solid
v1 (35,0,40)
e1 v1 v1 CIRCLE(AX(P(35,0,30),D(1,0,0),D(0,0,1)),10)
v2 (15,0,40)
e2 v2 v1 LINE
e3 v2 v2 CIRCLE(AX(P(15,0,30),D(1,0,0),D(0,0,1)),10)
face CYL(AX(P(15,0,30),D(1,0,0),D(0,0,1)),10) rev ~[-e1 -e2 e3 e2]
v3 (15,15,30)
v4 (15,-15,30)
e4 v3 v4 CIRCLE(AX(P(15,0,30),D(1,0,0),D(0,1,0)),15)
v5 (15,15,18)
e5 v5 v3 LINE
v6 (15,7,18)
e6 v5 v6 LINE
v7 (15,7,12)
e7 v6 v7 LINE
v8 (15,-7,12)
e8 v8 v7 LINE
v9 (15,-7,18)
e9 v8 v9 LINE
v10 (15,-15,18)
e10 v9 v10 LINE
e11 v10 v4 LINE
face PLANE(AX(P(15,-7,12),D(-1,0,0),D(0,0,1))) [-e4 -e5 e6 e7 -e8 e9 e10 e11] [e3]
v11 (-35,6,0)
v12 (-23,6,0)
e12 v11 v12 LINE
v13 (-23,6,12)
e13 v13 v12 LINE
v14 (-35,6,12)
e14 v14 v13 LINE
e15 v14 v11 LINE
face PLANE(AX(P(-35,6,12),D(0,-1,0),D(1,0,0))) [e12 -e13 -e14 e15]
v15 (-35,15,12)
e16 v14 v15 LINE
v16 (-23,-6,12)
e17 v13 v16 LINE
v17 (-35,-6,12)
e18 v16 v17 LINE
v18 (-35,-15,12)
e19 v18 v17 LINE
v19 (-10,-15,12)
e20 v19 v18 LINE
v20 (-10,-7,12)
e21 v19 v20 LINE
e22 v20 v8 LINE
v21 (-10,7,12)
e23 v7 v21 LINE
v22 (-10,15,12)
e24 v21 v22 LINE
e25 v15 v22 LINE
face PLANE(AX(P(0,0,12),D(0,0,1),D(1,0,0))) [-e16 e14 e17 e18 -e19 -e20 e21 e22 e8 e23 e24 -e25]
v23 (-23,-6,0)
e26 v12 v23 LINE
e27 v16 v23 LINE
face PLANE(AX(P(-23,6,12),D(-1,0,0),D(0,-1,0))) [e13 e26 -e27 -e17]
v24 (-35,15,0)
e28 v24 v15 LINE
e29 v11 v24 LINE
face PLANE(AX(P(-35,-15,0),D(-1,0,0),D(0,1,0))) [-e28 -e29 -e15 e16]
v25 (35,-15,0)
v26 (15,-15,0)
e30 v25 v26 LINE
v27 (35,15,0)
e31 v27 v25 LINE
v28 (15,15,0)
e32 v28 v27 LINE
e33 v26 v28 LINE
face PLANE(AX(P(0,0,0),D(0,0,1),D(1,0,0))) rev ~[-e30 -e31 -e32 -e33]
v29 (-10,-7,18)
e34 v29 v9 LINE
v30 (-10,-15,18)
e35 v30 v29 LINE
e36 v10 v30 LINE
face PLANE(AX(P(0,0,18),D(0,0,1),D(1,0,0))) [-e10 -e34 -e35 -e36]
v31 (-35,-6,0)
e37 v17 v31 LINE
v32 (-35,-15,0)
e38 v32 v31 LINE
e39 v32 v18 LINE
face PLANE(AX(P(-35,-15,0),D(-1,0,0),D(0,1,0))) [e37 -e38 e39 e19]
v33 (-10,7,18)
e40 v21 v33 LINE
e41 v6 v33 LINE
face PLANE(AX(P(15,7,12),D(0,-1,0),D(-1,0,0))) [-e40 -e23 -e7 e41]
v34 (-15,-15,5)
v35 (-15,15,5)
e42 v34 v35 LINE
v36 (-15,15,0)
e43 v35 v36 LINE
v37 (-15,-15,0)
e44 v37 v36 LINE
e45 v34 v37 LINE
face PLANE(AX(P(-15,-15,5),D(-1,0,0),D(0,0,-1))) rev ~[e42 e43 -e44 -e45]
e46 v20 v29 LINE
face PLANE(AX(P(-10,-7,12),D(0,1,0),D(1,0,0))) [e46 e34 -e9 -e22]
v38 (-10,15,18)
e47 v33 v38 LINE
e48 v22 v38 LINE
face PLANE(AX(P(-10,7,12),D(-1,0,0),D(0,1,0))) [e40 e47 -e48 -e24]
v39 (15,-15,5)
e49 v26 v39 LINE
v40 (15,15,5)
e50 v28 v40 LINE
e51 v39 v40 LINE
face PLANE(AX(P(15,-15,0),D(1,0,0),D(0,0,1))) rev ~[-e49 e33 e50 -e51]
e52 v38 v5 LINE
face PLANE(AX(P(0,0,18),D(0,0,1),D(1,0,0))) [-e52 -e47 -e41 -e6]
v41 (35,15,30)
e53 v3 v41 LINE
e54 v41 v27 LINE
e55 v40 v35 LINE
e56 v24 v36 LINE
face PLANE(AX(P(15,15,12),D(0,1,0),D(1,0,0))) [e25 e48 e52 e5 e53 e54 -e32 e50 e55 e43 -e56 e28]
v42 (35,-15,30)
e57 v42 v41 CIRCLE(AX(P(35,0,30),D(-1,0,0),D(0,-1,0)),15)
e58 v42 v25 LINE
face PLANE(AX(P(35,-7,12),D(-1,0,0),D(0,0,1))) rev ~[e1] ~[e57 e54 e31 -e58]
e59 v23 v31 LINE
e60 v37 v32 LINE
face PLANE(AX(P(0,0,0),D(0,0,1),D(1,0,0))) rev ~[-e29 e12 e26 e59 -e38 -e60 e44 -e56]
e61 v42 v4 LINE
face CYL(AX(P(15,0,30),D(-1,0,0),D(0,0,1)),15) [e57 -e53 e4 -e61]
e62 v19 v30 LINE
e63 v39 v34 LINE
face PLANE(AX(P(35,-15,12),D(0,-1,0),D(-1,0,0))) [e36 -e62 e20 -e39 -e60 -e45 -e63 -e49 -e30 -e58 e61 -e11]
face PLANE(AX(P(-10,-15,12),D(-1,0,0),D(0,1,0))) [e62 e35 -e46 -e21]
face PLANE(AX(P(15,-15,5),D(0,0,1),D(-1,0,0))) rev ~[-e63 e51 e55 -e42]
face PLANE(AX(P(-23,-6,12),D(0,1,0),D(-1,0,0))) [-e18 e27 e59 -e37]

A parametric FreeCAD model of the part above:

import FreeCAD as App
import Part
import Sketcher
from FreeCAD import Vector

doc = App.newDocument("Part")
body = doc.addObject("PartDesign::Body", "Body")

# Sketch on XY plane
sketch1 = body.newObject("Sketcher::SketchObject", "Sketch")
sketch1.AttachmentSupport = (doc.getObject("XY_Plane"), [""])
sketch1.MapMode = "FlatFace"
sketch1.addGeometry([
    Part.LineSegment(Vector(35, 15, 0), Vector(-35, 15, 0)),
    Part.LineSegment(Vector(-35, 15, 0), Vector(-35, -15, 0)),
    Part.LineSegment(Vector(-35, -15, 0), Vector(35, -15, 0)),
    Part.LineSegment(Vector(35, -15, 0), Vector(35, 15, 0)),
], False)
sketch1.addConstraint([
    Sketcher.Constraint("Coincident", 0, 2, 1, 1),
    Sketcher.Constraint("Coincident", 1, 2, 2, 1),
    Sketcher.Constraint("Coincident", 2, 2, 3, 1),
    Sketcher.Constraint("Coincident", 3, 2, 0, 1),
    Sketcher.Constraint("Horizontal", 0),
    Sketcher.Constraint("Vertical", 1),
    Sketcher.Constraint("Horizontal", 2),
    Sketcher.Constraint("Vertical", 3),
    Sketcher.Constraint("Symmetric", 0, 2, 2, 2, -1, 1),
    Sketcher.Constraint("DistanceX", 0, 2, 0, 1, 70.0),
    Sketcher.Constraint("DistanceY", 1, 2, 1, 1, 30.0),
])
pad1 = body.newObject("PartDesign::Pad", "Pad")
pad1.Profile = sketch1
pad1.Length = 12

# Sketch on XY plane
sketch2 = body.newObject("Sketcher::SketchObject", "Sketch001")
sketch2.AttachmentSupport = (doc.getObject("XY_Plane"), [""])
sketch2.MapMode = "FlatFace"
sketch2.AttachmentOffset = App.Placement(Vector(0, 0, 12), App.Rotation())
sketch2.addGeometry([
    Part.LineSegment(Vector(-23, 6, 0), Vector(-35, 6, 0)),
    Part.LineSegment(Vector(-35, 6, 0), Vector(-35, -6, 0)),
    Part.LineSegment(Vector(-35, -6, 0), Vector(-23, -6, 0)),
    Part.LineSegment(Vector(-23, -6, 0), Vector(-23, 6, 0)),
], False)
sketch2.addConstraint([
    Sketcher.Constraint("Coincident", 0, 2, 1, 1),
    Sketcher.Constraint("Coincident", 1, 2, 2, 1),
    Sketcher.Constraint("Coincident", 2, 2, 3, 1),
    Sketcher.Constraint("Coincident", 3, 2, 0, 1),
    Sketcher.Constraint("Horizontal", 0),
    Sketcher.Constraint("Vertical", 1),
    Sketcher.Constraint("Horizontal", 2),
    Sketcher.Constraint("Vertical", 3),
    Sketcher.Constraint("Equal", 2, 1),
    Sketcher.Constraint("DistanceX", 0, 2, 0, 1, 12.0),
    Sketcher.Constraint("DistanceX", 0, 2, -1, 1, 35.0),
    Sketcher.Constraint("DistanceY", -1, 1, 0, 2, 6.0),
])
pocket1 = body.newObject("PartDesign::Pocket", "Pocket")
pocket1.Profile = sketch2
pocket1.Length = 12

# Sketch on XZ plane
sketch3 = body.newObject("Sketcher::SketchObject", "Sketch002")
sketch3.AttachmentSupport = (doc.getObject("XZ_Plane"), [""])
sketch3.MapMode = "FlatFace"
sketch3.AttachmentOffset = App.Placement(Vector(0, 0, 15), App.Rotation())
sketch3.addGeometry([
    Part.LineSegment(Vector(-15, 0, 0), Vector(15, 0, 0)),
    Part.LineSegment(Vector(15, 0, 0), Vector(15, 5, 0)),
    Part.LineSegment(Vector(15, 5, 0), Vector(-15, 5, 0)),
    Part.LineSegment(Vector(-15, 5, 0), Vector(-15, 0, 0)),
], False)
sketch3.addConstraint([
    Sketcher.Constraint("Coincident", 0, 2, 1, 1),
    Sketcher.Constraint("Coincident", 1, 2, 2, 1),
    Sketcher.Constraint("Coincident", 2, 2, 3, 1),
    Sketcher.Constraint("Coincident", 3, 2, 0, 1),
    Sketcher.Constraint("Horizontal", 0),
    Sketcher.Constraint("Vertical", 1),
    Sketcher.Constraint("Horizontal", 2),
    Sketcher.Constraint("Vertical", 3),
    Sketcher.Constraint("Symmetric", 0, 2, 3, 2, -1, 1),
    Sketcher.Constraint("DistanceX", 0, 1, 0, 2, 30.0),
    Sketcher.Constraint("DistanceY", 1, 1, 1, 2, 5.0),
])
pocket2 = body.newObject("PartDesign::Pocket", "Pocket001")
pocket2.Profile = sketch3
pocket2.Length = 30

# Sketch on XY plane
sketch4 = body.newObject("Sketcher::SketchObject", "Sketch003")
sketch4.AttachmentSupport = (doc.getObject("XY_Plane"), [""])
sketch4.MapMode = "FlatFace"
sketch4.AttachmentOffset = App.Placement(Vector(0, 0, 12), App.Rotation())
sketch4.addGeometry([
    Part.LineSegment(Vector(15, 15, 0), Vector(-10, 15, 0)),  # 0
    Part.LineSegment(Vector(-10, 15, 0), Vector(-10, 7, 0)),  # 1
    Part.LineSegment(Vector(-10, 7, 0), Vector(15, 7, 0)),  # 2
    Part.LineSegment(Vector(15, 7, 0), Vector(15, 15, 0)),  # 3
    Part.LineSegment(Vector(-10, -15, 0), Vector(15, -15, 0)),  # 4
    Part.LineSegment(Vector(15, -15, 0), Vector(15, -7, 0)),  # 5
    Part.LineSegment(Vector(15, -7, 0), Vector(-10, -7, 0)),  # 6
    Part.LineSegment(Vector(-10, -7, 0), Vector(-10, -15, 0)),  # 7
], False)
sketch4.addConstraint([
    Sketcher.Constraint("Coincident", 0, 2, 1, 1),
    Sketcher.Constraint("Coincident", 1, 2, 2, 1),
    Sketcher.Constraint("Coincident", 2, 2, 3, 1),
    Sketcher.Constraint("Coincident", 3, 2, 0, 1),
    Sketcher.Constraint("Coincident", 4, 2, 5, 1),
    Sketcher.Constraint("Coincident", 5, 2, 6, 1),
    Sketcher.Constraint("Coincident", 6, 2, 7, 1),
    Sketcher.Constraint("Coincident", 7, 2, 4, 1),
    Sketcher.Constraint("Horizontal", 0),
    Sketcher.Constraint("Vertical", 1),
    Sketcher.Constraint("Horizontal", 2),
    Sketcher.Constraint("Vertical", 3),
    Sketcher.Constraint("Horizontal", 4),
    Sketcher.Constraint("Vertical", 5),
    Sketcher.Constraint("Horizontal", 6),
    Sketcher.Constraint("Vertical", 7),
    Sketcher.Constraint("Symmetric", 3, 2, 4, 2, -1),
    Sketcher.Constraint("Symmetric", 1, 2, 6, 2, -1),
    Sketcher.Constraint("DistanceX", 0, 2, 0, 1, 25.0),
    Sketcher.Constraint("DistanceY", 1, 2, 1, 1, 8.0),
    Sketcher.Constraint("DistanceY", -1, 1, 1, 2, 7.0),
    Sketcher.Constraint("DistanceX", 0, 2, -1, 1, 10.0),
])
pad2 = body.newObject("PartDesign::Pad", "Pad001")
pad2.Profile = sketch4
pad2.Length = 6

# Sketch on XY plane
sketch5 = body.newObject("Sketcher::SketchObject", "Sketch004")
sketch5.AttachmentSupport = (doc.getObject("XY_Plane"), [""])
sketch5.MapMode = "FlatFace"
sketch5.AttachmentOffset = App.Placement(Vector(0, 0, 12), App.Rotation())
sketch5.addGeometry([
    Part.LineSegment(Vector(35, 15, 0), Vector(15, 15, 0)),
    Part.LineSegment(Vector(15, 15, 0), Vector(15, -15, 0)),
    Part.LineSegment(Vector(15, -15, 0), Vector(35, -15, 0)),
    Part.LineSegment(Vector(35, -15, 0), Vector(35, 15, 0)),
], False)
sketch5.addConstraint([
    Sketcher.Constraint("Coincident", 0, 2, 1, 1),
    Sketcher.Constraint("Coincident", 1, 2, 2, 1),
    Sketcher.Constraint("Coincident", 2, 2, 3, 1),
    Sketcher.Constraint("Coincident", 3, 2, 0, 1),
    Sketcher.Constraint("Horizontal", 0),
    Sketcher.Constraint("Vertical", 1),
    Sketcher.Constraint("Horizontal", 2),
    Sketcher.Constraint("Vertical", 3),
    Sketcher.Constraint("DistanceX", 0, 2, 0, 1, 20.0),
    Sketcher.Constraint("DistanceY", 1, 2, 1, 1, 30.0),
    Sketcher.Constraint("DistanceX", -1, 1, 0, 2, 15.0),
    Sketcher.Constraint("DistanceY", -1, 1, 0, 2, 15.0),
])
pad3 = body.newObject("PartDesign::Pad", "Pad002")
pad3.Profile = sketch5
pad3.Length = 18

# Sketch on YZ plane
sketch6 = body.newObject("Sketcher::SketchObject", "Sketch005")
sketch6.AttachmentSupport = (doc.getObject("YZ_Plane"), [""])
sketch6.MapMode = "FlatFace"
sketch6.AttachmentOffset = App.Placement(Vector(0, 0, 15), App.Rotation())
sketch6.addGeometry(Part.Circle(Vector(0, 30, 0), Vector(0, 0, 1), 15), False)
sketch6.addConstraint([
    Sketcher.Constraint("PointOnObject", 0, 3, -2),
    Sketcher.Constraint("Diameter", 0, 30.0),
    Sketcher.Constraint("DistanceY", -1, 1, 0, 3, 30.0),
])
pad4 = body.newObject("PartDesign::Pad", "Pad003")
pad4.Profile = sketch6
pad4.Length = 20

# Sketch on YZ plane
sketch7 = body.newObject("Sketcher::SketchObject", "Sketch006")
sketch7.AttachmentSupport = (doc.getObject("YZ_Plane"), [""])
sketch7.MapMode = "FlatFace"
sketch7.AttachmentOffset = App.Placement(Vector(0, 0, 15), App.Rotation())
sketch7.addGeometry(Part.Circle(Vector(0, 30, 0), Vector(0, 0, 1), 10), False)
sketch7.addConstraint([
    Sketcher.Constraint("PointOnObject", 0, 3, -2),
    Sketcher.Constraint("Diameter", 0, 20.0),
    Sketcher.Constraint("DistanceY", -1, 1, 0, 3, 30.0),
])
doc.recompute()
hole = body.newObject("PartDesign::Hole", "Hole")
hole.Profile = sketch7
hole.ThreadType = "None"
hole.Diameter = 20
hole.DepthType = "Dimension"
hole.Depth = 20
hole.DrillPoint = "Angled"
hole.DrillPointAngle = 118
hole.Reversed = True

doc.recompute()
